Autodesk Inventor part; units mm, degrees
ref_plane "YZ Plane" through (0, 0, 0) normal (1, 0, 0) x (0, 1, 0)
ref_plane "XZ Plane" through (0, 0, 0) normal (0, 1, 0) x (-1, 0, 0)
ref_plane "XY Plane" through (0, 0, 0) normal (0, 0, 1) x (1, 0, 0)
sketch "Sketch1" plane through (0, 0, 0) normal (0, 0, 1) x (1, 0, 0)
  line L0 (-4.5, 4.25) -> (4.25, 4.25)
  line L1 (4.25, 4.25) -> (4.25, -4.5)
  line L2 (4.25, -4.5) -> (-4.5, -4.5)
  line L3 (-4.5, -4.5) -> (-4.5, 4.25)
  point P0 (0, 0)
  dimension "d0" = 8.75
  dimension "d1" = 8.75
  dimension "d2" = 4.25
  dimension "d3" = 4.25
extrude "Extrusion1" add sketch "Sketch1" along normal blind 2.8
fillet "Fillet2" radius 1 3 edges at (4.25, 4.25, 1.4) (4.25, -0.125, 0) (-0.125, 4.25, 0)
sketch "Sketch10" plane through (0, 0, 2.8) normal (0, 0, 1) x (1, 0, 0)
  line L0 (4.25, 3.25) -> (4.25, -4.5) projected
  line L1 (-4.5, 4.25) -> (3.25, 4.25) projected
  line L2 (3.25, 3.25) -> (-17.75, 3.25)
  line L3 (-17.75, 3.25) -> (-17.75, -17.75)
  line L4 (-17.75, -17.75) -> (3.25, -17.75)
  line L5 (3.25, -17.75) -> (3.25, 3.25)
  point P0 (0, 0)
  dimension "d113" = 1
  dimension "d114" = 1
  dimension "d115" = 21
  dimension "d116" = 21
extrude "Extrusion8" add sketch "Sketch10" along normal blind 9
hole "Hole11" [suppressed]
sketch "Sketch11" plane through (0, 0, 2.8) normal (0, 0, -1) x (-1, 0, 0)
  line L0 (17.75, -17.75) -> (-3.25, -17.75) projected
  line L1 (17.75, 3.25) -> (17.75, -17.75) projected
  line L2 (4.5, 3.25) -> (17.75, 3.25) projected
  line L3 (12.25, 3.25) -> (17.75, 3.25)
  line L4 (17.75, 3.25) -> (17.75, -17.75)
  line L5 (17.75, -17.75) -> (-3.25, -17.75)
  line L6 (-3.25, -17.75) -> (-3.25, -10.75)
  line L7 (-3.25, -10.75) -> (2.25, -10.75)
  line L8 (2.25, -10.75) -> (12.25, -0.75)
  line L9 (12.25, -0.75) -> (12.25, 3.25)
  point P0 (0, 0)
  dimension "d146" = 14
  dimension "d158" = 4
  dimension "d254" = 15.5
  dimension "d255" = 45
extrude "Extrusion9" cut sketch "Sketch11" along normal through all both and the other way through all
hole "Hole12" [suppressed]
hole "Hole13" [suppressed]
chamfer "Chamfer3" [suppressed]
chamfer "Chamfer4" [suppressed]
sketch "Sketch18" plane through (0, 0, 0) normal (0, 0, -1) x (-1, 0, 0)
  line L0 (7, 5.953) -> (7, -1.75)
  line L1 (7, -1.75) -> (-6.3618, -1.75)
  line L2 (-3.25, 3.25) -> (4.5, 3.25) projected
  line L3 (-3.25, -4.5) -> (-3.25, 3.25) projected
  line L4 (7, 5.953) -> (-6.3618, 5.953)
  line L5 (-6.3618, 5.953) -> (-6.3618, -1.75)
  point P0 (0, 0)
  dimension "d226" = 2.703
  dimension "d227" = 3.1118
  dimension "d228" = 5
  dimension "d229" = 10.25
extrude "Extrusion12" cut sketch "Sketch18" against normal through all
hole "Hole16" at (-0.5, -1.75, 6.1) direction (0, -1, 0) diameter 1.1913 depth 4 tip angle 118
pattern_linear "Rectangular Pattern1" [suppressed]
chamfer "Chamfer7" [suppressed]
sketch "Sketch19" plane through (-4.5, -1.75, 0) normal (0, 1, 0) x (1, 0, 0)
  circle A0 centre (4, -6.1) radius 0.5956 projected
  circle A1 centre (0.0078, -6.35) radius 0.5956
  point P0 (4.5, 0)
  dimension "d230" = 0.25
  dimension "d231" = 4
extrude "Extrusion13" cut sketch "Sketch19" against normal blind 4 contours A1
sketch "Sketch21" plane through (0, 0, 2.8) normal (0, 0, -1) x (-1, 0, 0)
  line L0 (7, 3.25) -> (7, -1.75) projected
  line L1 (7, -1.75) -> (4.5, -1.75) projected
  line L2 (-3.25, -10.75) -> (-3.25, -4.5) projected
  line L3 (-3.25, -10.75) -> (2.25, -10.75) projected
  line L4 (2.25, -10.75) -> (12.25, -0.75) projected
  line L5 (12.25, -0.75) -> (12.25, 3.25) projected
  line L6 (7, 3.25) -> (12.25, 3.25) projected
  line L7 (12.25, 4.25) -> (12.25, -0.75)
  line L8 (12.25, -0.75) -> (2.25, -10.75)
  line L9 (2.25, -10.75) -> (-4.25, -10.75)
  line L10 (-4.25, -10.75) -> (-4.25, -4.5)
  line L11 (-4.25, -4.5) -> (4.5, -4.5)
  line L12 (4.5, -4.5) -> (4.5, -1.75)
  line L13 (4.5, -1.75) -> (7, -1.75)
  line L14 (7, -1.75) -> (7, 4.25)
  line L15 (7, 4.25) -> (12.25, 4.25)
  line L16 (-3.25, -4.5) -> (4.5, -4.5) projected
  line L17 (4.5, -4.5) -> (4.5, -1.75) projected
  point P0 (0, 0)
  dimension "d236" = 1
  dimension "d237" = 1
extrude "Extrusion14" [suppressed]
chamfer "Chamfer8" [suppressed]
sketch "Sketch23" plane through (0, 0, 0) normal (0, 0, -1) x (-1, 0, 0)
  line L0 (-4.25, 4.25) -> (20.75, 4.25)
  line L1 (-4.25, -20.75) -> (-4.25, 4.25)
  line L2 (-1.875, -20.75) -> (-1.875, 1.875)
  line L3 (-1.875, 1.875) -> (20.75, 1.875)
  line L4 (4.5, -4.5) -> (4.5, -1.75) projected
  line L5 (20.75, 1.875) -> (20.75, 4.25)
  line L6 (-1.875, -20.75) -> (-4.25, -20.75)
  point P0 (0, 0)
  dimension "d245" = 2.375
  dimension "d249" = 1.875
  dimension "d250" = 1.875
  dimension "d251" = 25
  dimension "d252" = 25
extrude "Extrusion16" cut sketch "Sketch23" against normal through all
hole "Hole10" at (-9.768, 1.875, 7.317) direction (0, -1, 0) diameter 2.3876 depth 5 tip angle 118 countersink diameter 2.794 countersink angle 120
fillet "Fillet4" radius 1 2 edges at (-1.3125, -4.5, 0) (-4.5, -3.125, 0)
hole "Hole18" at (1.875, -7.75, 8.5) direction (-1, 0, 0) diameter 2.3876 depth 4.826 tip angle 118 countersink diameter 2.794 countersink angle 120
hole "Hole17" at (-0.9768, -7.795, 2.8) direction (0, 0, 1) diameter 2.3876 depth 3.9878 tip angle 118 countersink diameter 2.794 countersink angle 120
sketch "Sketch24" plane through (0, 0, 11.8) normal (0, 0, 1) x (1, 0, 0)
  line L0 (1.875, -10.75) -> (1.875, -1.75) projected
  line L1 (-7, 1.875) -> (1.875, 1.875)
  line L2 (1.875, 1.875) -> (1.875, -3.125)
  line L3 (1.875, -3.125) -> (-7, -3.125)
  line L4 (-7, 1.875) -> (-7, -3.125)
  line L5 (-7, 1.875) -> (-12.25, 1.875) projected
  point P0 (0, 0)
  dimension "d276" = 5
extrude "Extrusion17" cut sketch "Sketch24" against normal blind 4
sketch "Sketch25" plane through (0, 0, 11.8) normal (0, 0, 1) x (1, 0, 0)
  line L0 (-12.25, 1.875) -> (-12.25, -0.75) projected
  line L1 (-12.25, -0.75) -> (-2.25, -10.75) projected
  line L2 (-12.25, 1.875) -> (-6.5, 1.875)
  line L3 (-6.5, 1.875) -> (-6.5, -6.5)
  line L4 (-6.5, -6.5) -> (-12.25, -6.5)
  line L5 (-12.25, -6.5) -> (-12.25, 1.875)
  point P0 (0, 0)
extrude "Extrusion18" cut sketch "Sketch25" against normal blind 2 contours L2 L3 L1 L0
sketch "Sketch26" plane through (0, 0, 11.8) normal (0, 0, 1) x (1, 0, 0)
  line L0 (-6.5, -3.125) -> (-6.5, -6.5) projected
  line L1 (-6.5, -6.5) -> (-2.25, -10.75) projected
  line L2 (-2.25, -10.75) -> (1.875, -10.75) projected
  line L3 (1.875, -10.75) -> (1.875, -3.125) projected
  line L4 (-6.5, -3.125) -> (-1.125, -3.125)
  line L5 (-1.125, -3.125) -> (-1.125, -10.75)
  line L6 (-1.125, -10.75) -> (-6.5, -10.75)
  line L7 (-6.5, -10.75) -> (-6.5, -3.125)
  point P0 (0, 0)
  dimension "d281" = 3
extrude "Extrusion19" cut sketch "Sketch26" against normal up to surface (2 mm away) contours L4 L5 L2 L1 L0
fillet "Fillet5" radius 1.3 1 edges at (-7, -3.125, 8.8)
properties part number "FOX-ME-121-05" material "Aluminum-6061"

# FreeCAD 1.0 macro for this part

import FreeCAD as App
import Part
import Sketcher
Q = App.Units.Quantity


def edges_at(feature, points):
    """Names of the edges that pass closest to the given points."""
    edges = feature.Shape.Edges
    near = lambda p: min(range(len(edges)), key=lambda i: edges[i].distToShape(Part.Vertex(*p))[0])
    return sorted({f"Edge{near(p) + 1}" for p in points})


def add_polygon(sketch, points):
    """Adds a closed chain of lines whose ends are joined by coincident constraints."""
    first, n = sketch.GeometryCount, len(points)
    for a, b in zip(points, points[1:] + points[:1]):
        sketch.addGeometry(Part.LineSegment(App.Vector(*a, 0), App.Vector(*b, 0)), False)
    for i in range(n):
        sketch.addConstraint(Sketcher.Constraint("Coincident", first + i, 2, first + (i + 1) % n, 1))

doc = App.newDocument("Part")
params = doc.addObject("Spreadsheet::Sheet", "Params")
for row, (alias, value) in enumerate([
    ("sketch1_width", "8.75 mm"),
    ("pad1_length", "2.8 mm"),
    ("fillet_radius", "1 mm"),
    ("sketch2_width", "21 mm"),
    ("pad2_length", "9 mm"),
    ("sketch3_height", "4 mm"),
    ("hole_diameter", "1.1913 mm"),
    ("hole_depth", "4 mm"),
    ("pocket3_length", "4 mm"),
    ("sketch7_width", "25 mm"),
    ("hole2_diameter", "2.3876 mm"),
    ("hole2_depth", "5 mm"),
    ("hole2_csink_diameter", "2.794 mm"),
    ("fillet2_radius", "1 mm"),
    ("hole3_diameter", "2.3876 mm"),
    ("hole3_depth", "4.826 mm"),
    ("hole3_csink_diameter", "2.794 mm"),
    ("hole4_diameter", "2.3876 mm"),
    ("hole4_depth", "3.9878 mm"),
    ("hole4_csink_diameter", "2.794 mm"),
    ("sketch11_height", "5 mm"),
    ("pocket5_length", "4 mm"),
    ("sketch12_width", "5.75 mm"),
    ("pocket6_length", "2 mm"),
    ("pocket7_length", "2 mm"),
    ("fillet3_radius", "1.3 mm"),
], start=1):
    params.set(f"A{row}", alias)
    params.set(f"B{row}", "=" + value)
    params.setAlias(f"B{row}", alias)

body = doc.addObject("PartDesign::Body", "Body")

# Sketch on XY plane
sketch1 = body.newObject("Sketcher::SketchObject", "Sketch")
sketch1.AttachmentSupport = (doc.getObject("XY_Plane"), [""])
sketch1.MapMode = "FlatFace"
add_polygon(sketch1, [(4, 4), (-4, 4), (-4, -4), (4, -4)])  # lines 0-3
sketch1.addConstraint(Sketcher.Constraint("Horizontal", 0))
sketch1.addConstraint(Sketcher.Constraint("Vertical", 1))
sketch1.addConstraint(Sketcher.Constraint("Horizontal", 2))
sketch1.addConstraint(Sketcher.Constraint("Vertical", 3))
sketch1.addConstraint(Sketcher.Constraint("Equal", 2, 1))
sketch1.addConstraint(Sketcher.Constraint("DistanceX", 0, 2, 0, 1, 8.75))
sketch1.addConstraint(Sketcher.Constraint("DistanceY", -1, 1, 0, 2, 4.25))
sketch1.addConstraint(Sketcher.Constraint("DistanceX", -1, 1, 2, 2, 4.25))
sketch1.setExpression("Constraints[9]", "Params.sketch1_width")
pad1 = body.newObject("PartDesign::Pad", "Pad")
pad1.Profile = sketch1
pad1.setExpression("Length", "Params.pad1_length")
doc.recompute()

fillet = body.newObject("PartDesign::Fillet", "Fillet")
fillet.Base = (pad1, edges_at(pad1, [(4.25, 4.25, 1.4), (4.25, -0.125, 0), (-0.125, 4.25, 0)]))
fillet.setExpression("Radius", "Params.fillet_radius")

# Sketch on XY plane
sketch2 = body.newObject("Sketcher::SketchObject", "Sketch001")
sketch2.AttachmentSupport = (doc.getObject("XY_Plane"), [""])
sketch2.MapMode = "FlatFace"
sketch2.AttachmentOffset = App.Placement(App.Vector(0, 0, 2.8), App.Rotation())
add_polygon(sketch2, [(3, -18), (3, 3), (-18, 3), (-18, -18)])  # lines 0-3
sketch2.addConstraint(Sketcher.Constraint("Vertical", 0))
sketch2.addConstraint(Sketcher.Constraint("Horizontal", 1))
sketch2.addConstraint(Sketcher.Constraint("Vertical", 2))
sketch2.addConstraint(Sketcher.Constraint("Horizontal", 3))
sketch2.addConstraint(Sketcher.Constraint("Equal", 3, 0))
sketch2.addConstraint(Sketcher.Constraint("DistanceX", 1, 2, 1, 1, 21.0))
sketch2.addConstraint(Sketcher.Constraint("DistanceX", -1, 1, 0, 2, 3.25))
sketch2.addConstraint(Sketcher.Constraint("DistanceY", -1, 1, 0, 2, 3.25))
sketch2.setExpression("Constraints[9]", "Params.sketch2_width")
pad2 = body.newObject("PartDesign::Pad", "Pad001")
pad2.Profile = sketch2
pad2.setExpression("Length", "Params.pad2_length")

# Sketch on XY plane
sketch3 = body.newObject("Sketcher::SketchObject", "Sketch002")
sketch3.AttachmentSupport = (doc.getObject("XY_Plane"), [""])
sketch3.MapMode = "FlatFace"
sketch3.AttachmentOffset = App.Placement(App.Vector(0, 0, 2.8), App.Rotation())
add_polygon(sketch3, [(3.2, -17.8), (-17.8, -17.8), (-17.8, 3.2), (-12.2, 3.2), (-12.2, -0.8), (-2.2, -10.8), (3.2, -10.8)])  # lines 0-6
sketch3.addConstraint(Sketcher.Constraint("Horizontal", 0))
sketch3.addConstraint(Sketcher.Constraint("Vertical", 1))
sketch3.addConstraint(Sketcher.Constraint("Horizontal", 2))
sketch3.addConstraint(Sketcher.Constraint("Vertical", 3))
sketch3.addConstraint(Sketcher.Constraint("Horizontal", 5))
sketch3.addConstraint(Sketcher.Constraint("Vertical", 6))
sketch3.addConstraint(Sketcher.Constraint("Equal", 2, 5))
sketch3.addConstraint(Sketcher.Constraint("Equal", 0, 1))
sketch3.addConstraint(Sketcher.Constraint("DistanceY", 3, 2, 3, 1, 4.0))
sketch3.addConstraint(Sketcher.Constraint("Angle", 4, Q("-45 deg")))
sketch3.addConstraint(Sketcher.Constraint("DistanceY", 4, 2, 2, 2, 14.0))
sketch3.addConstraint(Sketcher.Constraint("DistanceX", 0, 2, 4, 2, 15.5))
sketch3.addConstraint(Sketcher.Constraint("DistanceX", 0, 2, -1, 1, 17.75))
sketch3.addConstraint(Sketcher.Constraint("DistanceY", 0, 2, -1, 1, 17.75))
sketch3.setExpression("Constraints[15]", "Params.sketch3_height")
pocket1 = body.newObject("PartDesign::Pocket", "Pocket")
pocket1.Profile = sketch3
pocket1.Type = "ThroughAll"
pocket1.Midplane = True

# Sketch on XY plane
sketch4 = body.newObject("Sketcher::SketchObject", "Sketch003")
sketch4.AttachmentSupport = (doc.getObject("XY_Plane"), [""])
sketch4.MapMode = "FlatFace"
add_polygon(sketch4, [(-7, -2), (-7, 6), (6, 6), (6, -2)])  # lines 0-3
sketch4.addConstraint(Sketcher.Constraint("Vertical", 0))
sketch4.addConstraint(Sketcher.Constraint("Horizontal", 1))
sketch4.addConstraint(Sketcher.Constraint("Vertical", 2))
sketch4.addConstraint(Sketcher.Constraint("Horizontal", 3))
sketch4.addConstraint(Sketcher.Constraint("DistanceX", 0, 2, -1, 1, 7.0))
sketch4.addConstraint(Sketcher.Constraint("DistanceY", 0, 1, 0, 2, 7.703))
sketch4.addConstraint(Sketcher.Constraint("DistanceY", 2, 2, -1, 1, 1.75))
sketch4.addConstraint(Sketcher.Constraint("DistanceX", 1, 1, 1, 2, 13.3618))
pocket2 = body.newObject("PartDesign::Pocket", "Pocket001")
pocket2.Profile = sketch4
pocket2.Type = "ThroughAll"
pocket2.Reversed = True

# Sketch on XZ plane
sketch5 = body.newObject("Sketcher::SketchObject", "Sketch004")
sketch5.AttachmentSupport = (doc.getObject("XZ_Plane"), [""])
sketch5.MapMode = "FlatFace"
sketch5.AttachmentOffset = App.Placement(App.Vector(0, 0, 1.75), App.Rotation())
sketch5.addGeometry(Part.Circle(App.Vector(-0.5, 6.1, 0), App.Vector(0, 0, 1), 0.6), False)
sketch5.addConstraint(Sketcher.Constraint("Diameter", 0, 1.1913))
sketch5.addConstraint(Sketcher.Constraint("DistanceX", 0, 3, -1, 1, 0.5))
sketch5.addConstraint(Sketcher.Constraint("DistanceY", -1, 1, 0, 3, 6.1))
doc.recompute()
hole = body.newObject("PartDesign::Hole", "Hole")
hole.Profile = sketch5
hole.ThreadType = "None"
hole.setExpression("Diameter", "Params.hole_diameter")
hole.DepthType = "Dimension"
hole.setExpression("Depth", "Params.hole_depth")
hole.DrillPoint = "Angled"
hole.DrillPointAngle = 118
hole.Reversed = True

# Sketch on XZ plane
sketch6 = body.newObject("Sketcher::SketchObject", "Sketch005")
sketch6.AttachmentSupport = (doc.getObject("XZ_Plane"), [""])
sketch6.MapMode = "FlatFace"
sketch6.AttachmentOffset = App.Placement(App.Vector(0, 0, 1.75), App.Rotation())
sketch6.addGeometry(Part.Circle(App.Vector(-4.5, 6.3, 0), App.Vector(0, 0, 1), 0.6), False)
sketch6.addConstraint(Sketcher.Constraint("Diameter", 0, 1.1912))
sketch6.addConstraint(Sketcher.Constraint("DistanceY", -1, 1, 0, 3, 6.35))
sketch6.addConstraint(Sketcher.Constraint("DistanceX", 0, 3, -1, 1, 4.4922))
pocket3 = body.newObject("PartDesign::Pocket", "Pocket002")
pocket3.Profile = sketch6
pocket3.setExpression("Length", "Params.pocket3_length")
pocket3.Reversed = True

# Sketch on XY plane
sketch7 = body.newObject("Sketcher::SketchObject", "Sketch006")
sketch7.AttachmentSupport = (doc.getObject("XY_Plane"), [""])
sketch7.MapMode = "FlatFace"
add_polygon(sketch7, [(-20.8, 4.2), (4.2, 4.2), (4.2, -20.8), (1.9, -20.8), (1.9, 1.9), (-20.8, 1.9)])  # lines 0-5
sketch7.addConstraint(Sketcher.Constraint("Horizontal", 0))
sketch7.addConstraint(Sketcher.Constraint("Vertical", 1))
sketch7.addConstraint(Sketcher.Constraint("Horizontal", 2))
sketch7.addConstraint(Sketcher.Constraint("Vertical", 3))
sketch7.addConstraint(Sketcher.Constraint("Horizontal", 4))
sketch7.addConstraint(Sketcher.Constraint("Vertical", 5))
sketch7.addConstraint(Sketcher.Constraint("Equal", 0, 1))
sketch7.addConstraint(Sketcher.Constraint("Equal", 4, 3))
sketch7.addConstraint(Sketcher.Constraint("DistanceX", 0, 1, 0, 2, 25.0))
sketch7.addConstraint(Sketcher.Constraint("DistanceX", 2, 2, 2, 1, 2.375))
sketch7.addConstraint(Sketcher.Constraint("DistanceX", -1, 1, 2, 2, 1.875))
sketch7.addConstraint(Sketcher.Constraint("DistanceY", -1, 1, 3, 2, 1.875))
sketch7.setExpression("Constraints[14]", "Params.sketch7_width")
pocket4 = body.newObject("PartDesign::Pocket", "Pocket003")
pocket4.Profile = sketch7
pocket4.Type = "ThroughAll"
pocket4.Reversed = True

# Sketch on XZ plane
sketch8 = body.newObject("Sketcher::SketchObject", "Sketch007")
sketch8.AttachmentSupport = (doc.getObject("XZ_Plane"), [""])
sketch8.MapMode = "FlatFace"
sketch8.AttachmentOffset = App.Placement(App.Vector(0, 0, -1.875), App.Rotation())
sketch8.addGeometry(Part.Circle(App.Vector(-9.8, 7.3, 0), App.Vector(0, 0, 1), 1.2), False)
sketch8.addConstraint(Sketcher.Constraint("Diameter", 0, 2.3876))
sketch8.addConstraint(Sketcher.Constraint("DistanceX", 0, 3, -1, 1, 9.768))
sketch8.addConstraint(Sketcher.Constraint("DistanceY", -1, 1, 0, 3, 7.317))
doc.recompute()
hole2 = body.newObject("PartDesign::Hole", "Hole001")
hole2.Profile = sketch8
hole2.ThreadType = "None"
hole2.setExpression("Diameter", "Params.hole2_diameter")
hole2.DepthType = "Dimension"
hole2.setExpression("Depth", "Params.hole2_depth")
hole2.DrillPoint = "Angled"
hole2.DrillPointAngle = 118
hole2.HoleCutType = "Countersink"
hole2.setExpression("HoleCutDiameter", "Params.hole2_csink_diameter")
hole2.HoleCutCountersinkAngle = 120
hole2.Reversed = True
doc.recompute()

fillet2 = body.newObject("PartDesign::Fillet", "Fillet001")
fillet2.Base = (hole2, edges_at(hole2, [(-1.312, -4.5, 0), (-4.5, -3.125, 0)]))
fillet2.setExpression("Radius", "Params.fillet2_radius")

# Sketch on YZ plane
sketch9 = body.newObject("Sketcher::SketchObject", "Sketch008")
sketch9.AttachmentSupport = (doc.getObject("YZ_Plane"), [""])
sketch9.MapMode = "FlatFace"
sketch9.AttachmentOffset = App.Placement(App.Vector(0, 0, 1.875), App.Rotation())
sketch9.addGeometry(Part.Circle(App.Vector(-7.8, 8.5, 0), App.Vector(0, 0, 1), 1.2), False)
sketch9.addConstraint(Sketcher.Constraint("Diameter", 0, 2.3876))
sketch9.addConstraint(Sketcher.Constraint("DistanceY", -1, 1, 0, 3, 8.5))
sketch9.addConstraint(Sketcher.Constraint("DistanceX", 0, 3, -1, 1, 7.75))
doc.recompute()
hole3 = body.newObject("PartDesign::Hole", "Hole002")
hole3.Profile = sketch9
hole3.ThreadType = "None"
hole3.setExpression("Diameter", "Params.hole3_diameter")
hole3.DepthType = "Dimension"
hole3.setExpression("Depth", "Params.hole3_depth")
hole3.DrillPoint = "Angled"
hole3.DrillPointAngle = 118
hole3.HoleCutType = "Countersink"
hole3.setExpression("HoleCutDiameter", "Params.hole3_csink_diameter")
hole3.HoleCutCountersinkAngle = 120

# Sketch on XY plane
sketch10 = body.newObject("Sketcher::SketchObject", "Sketch009")
sketch10.AttachmentSupport = (doc.getObject("XY_Plane"), [""])
sketch10.MapMode = "FlatFace"
sketch10.AttachmentOffset = App.Placement(App.Vector(0, 0, 2.8), App.Rotation())
sketch10.addGeometry(Part.Circle(App.Vector(-1, -7.8, 0), App.Vector(0, 0, 1), 1.2), False)
sketch10.addConstraint(Sketcher.Constraint("Diameter", 0, 2.3876))
sketch10.addConstraint(Sketcher.Constraint("DistanceY", 0, 3, -1, 1, 7.795))
sketch10.addConstraint(Sketcher.Constraint("DistanceX", 0, 3, -1, 1, 0.9768))
doc.recompute()
hole4 = body.newObject("PartDesign::Hole", "Hole003")
hole4.Profile = sketch10
hole4.ThreadType = "None"
hole4.setExpression("Diameter", "Params.hole4_diameter")
hole4.DepthType = "Dimension"
hole4.setExpression("Depth", "Params.hole4_depth")
hole4.DrillPoint = "Angled"
hole4.DrillPointAngle = 118
hole4.HoleCutType = "Countersink"
hole4.setExpression("HoleCutDiameter", "Params.hole4_csink_diameter")
hole4.HoleCutCountersinkAngle = 120
hole4.Reversed = True

# Sketch on XY plane
sketch11 = body.newObject("Sketcher::SketchObject", "Sketch010")
sketch11.AttachmentSupport = (doc.getObject("XY_Plane"), [""])
sketch11.MapMode = "FlatFace"
sketch11.AttachmentOffset = App.Placement(App.Vector(0, 0, 11.8), App.Rotation())
add_polygon(sketch11, [(-7, -3), (2, -3), (2, 2), (-7, 2)])  # lines 0-3
sketch11.addConstraint(Sketcher.Constraint("Horizontal", 0))
sketch11.addConstraint(Sketcher.Constraint("Vertical", 1))
sketch11.addConstraint(Sketcher.Constraint("Horizontal", 2))
sketch11.addConstraint(Sketcher.Constraint("Vertical", 3))
sketch11.addConstraint(Sketcher.Constraint("DistanceY", 1, 1, 1, 2, 5.0))
sketch11.addConstraint(Sketcher.Constraint("DistanceX", 2, 2, -1, 1, 7.0))
sketch11.addConstraint(Sketcher.Constraint("DistanceX", 0, 1, 0, 2, 8.875))
sketch11.addConstraint(Sketcher.Constraint("DistanceY", 0, 2, -1, 1, 3.125))
sketch11.setExpression("Constraints[8]", "Params.sketch11_height")
pocket5 = body.newObject("PartDesign::Pocket", "Pocket004")
pocket5.Profile = sketch11
pocket5.setExpression("Length", "Params.pocket5_length")

# Sketch on XY plane
sketch12 = body.newObject("Sketcher::SketchObject", "Sketch011")
sketch12.AttachmentSupport = (doc.getObject("XY_Plane"), [""])
sketch12.MapMode = "FlatFace"
sketch12.AttachmentOffset = App.Placement(App.Vector(0, 0, 11.8), App.Rotation())
add_polygon(sketch12, [(-6.5, 1.9), (-12.2, 1.9), (-12.2, -0.8), (-6.5, -6.5)])  # lines 0-3
sketch12.addConstraint(Sketcher.Constraint("Horizontal", 0))
sketch12.addConstraint(Sketcher.Constraint("Vertical", 1))
sketch12.addConstraint(Sketcher.Constraint("Vertical", 3))
sketch12.addConstraint(Sketcher.Constraint("Angle", 2, Q("-45 deg")))
sketch12.addConstraint(Sketcher.Constraint("DistanceX", 0, 2, 0, 1, 5.75))
sketch12.addConstraint(Sketcher.Constraint("DistanceX", 2, 2, -1, 1, 6.5))
sketch12.addConstraint(Sketcher.Constraint("DistanceY", 2, 2, -1, 1, 6.5))
sketch12.addConstraint(Sketcher.Constraint("DistanceY", 1, 2, 1, 1, 2.625))
sketch12.setExpression("Constraints[8]", "Params.sketch12_width")
pocket6 = body.newObject("PartDesign::Pocket", "Pocket005")
pocket6.Profile = sketch12
pocket6.setExpression("Length", "Params.pocket6_length")

# Sketch on XY plane
sketch13 = body.newObject("Sketcher::SketchObject", "Sketch012")
sketch13.AttachmentSupport = (doc.getObject("XY_Plane"), [""])
sketch13.MapMode = "FlatFace"
sketch13.AttachmentOffset = App.Placement(App.Vector(0, 0, 11.8), App.Rotation())
add_polygon(sketch13, [(-1.1, -3.1), (-6.5, -3.1), (-6.5, -6.5), (-2.2, -10.8), (-1.1, -10.8)])  # lines 0-4
sketch13.addConstraint(Sketcher.Constraint("Horizontal", 0))
sketch13.addConstraint(Sketcher.Constraint("Vertical", 1))
sketch13.addConstraint(Sketcher.Constraint("Horizontal", 3))
sketch13.addConstraint(Sketcher.Constraint("Vertical", 4))
sketch13.addConstraint(Sketcher.Constraint("Angle", 2, Q("-45 deg")))
sketch13.addConstraint(Sketcher.Constraint("DistanceX", 0, 2, -1, 1, 6.5))
sketch13.addConstraint(Sketcher.Constraint("DistanceY", 1, 2, -1, 1, 6.5))
sketch13.addConstraint(Sketcher.Constraint("DistanceX", 0, 2, 0, 1, 5.375))
sketch13.addConstraint(Sketcher.Constraint("DistanceX", 3, 1, 3, 2, 1.125))
sketch13.addConstraint(Sketcher.Constraint("DistanceY", 1, 2, 1, 1, 3.375))
pocket7 = body.newObject("PartDesign::Pocket", "Pocket006")
pocket7.Profile = sketch13
pocket7.setExpression("Length", "Params.pocket7_length")
doc.recompute()

fillet3 = body.newObject("PartDesign::Fillet", "Fillet002")
fillet3.Base = (pocket7, edges_at(pocket7, [(-7, -3.125, 8.8)]))
fillet3.setExpression("Radius", "Params.fillet3_radius")

doc.recompute()
